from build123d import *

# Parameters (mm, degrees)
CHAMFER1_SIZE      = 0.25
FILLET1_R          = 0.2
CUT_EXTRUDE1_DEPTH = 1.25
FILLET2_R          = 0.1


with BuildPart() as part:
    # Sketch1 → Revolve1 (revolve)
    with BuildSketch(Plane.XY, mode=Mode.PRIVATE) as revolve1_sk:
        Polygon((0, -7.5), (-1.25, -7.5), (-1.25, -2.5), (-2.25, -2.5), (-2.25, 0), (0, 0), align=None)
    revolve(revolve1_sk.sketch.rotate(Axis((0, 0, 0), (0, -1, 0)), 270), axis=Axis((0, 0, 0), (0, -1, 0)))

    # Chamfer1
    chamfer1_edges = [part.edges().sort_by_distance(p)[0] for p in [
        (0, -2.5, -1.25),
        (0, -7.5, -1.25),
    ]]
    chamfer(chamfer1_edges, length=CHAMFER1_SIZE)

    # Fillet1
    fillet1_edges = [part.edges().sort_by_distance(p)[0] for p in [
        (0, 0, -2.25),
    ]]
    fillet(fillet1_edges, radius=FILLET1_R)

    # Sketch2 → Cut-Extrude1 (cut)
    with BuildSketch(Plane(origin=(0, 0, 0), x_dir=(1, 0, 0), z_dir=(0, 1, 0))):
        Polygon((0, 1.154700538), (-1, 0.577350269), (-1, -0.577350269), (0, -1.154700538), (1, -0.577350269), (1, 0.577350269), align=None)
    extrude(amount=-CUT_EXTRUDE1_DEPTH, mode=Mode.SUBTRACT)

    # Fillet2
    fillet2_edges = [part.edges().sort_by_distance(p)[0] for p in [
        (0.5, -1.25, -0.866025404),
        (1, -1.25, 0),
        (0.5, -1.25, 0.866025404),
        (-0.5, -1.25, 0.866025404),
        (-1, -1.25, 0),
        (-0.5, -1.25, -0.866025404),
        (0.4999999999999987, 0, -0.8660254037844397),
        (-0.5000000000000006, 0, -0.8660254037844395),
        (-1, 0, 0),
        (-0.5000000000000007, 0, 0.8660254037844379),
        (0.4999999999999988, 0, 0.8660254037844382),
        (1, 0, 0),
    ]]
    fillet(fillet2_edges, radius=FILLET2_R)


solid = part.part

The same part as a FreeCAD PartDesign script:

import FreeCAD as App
import Part
import Sketcher
Q = App.Units.Quantity


def edges_at(feature, points):
    """Names of the edges that pass closest to the given points."""
    edges = feature.Shape.Edges
    near = lambda p: min(range(len(edges)), key=lambda i: edges[i].distToShape(Part.Vertex(*p))[0])
    return sorted({f"Edge{near(p) + 1}" for p in points})

doc = App.newDocument("Part")
body = doc.addObject("PartDesign::Body", "Body")

sketch1 = doc.addObject("Sketcher::SketchObject", "Sketch")
body.addObject(sketch1)
sketch1.AttachmentSupport = (doc.XY_Plane, [""])
sketch1.MapMode = "FlatFace"
sketch1.addGeometry([
    Part.LineSegment(App.Vector(-1.2, -7.5, 0), App.Vector(0, -7.5, 0)),
    Part.LineSegment(App.Vector(0, -7.5, 0), App.Vector(0, 0, 0)),
    Part.LineSegment(App.Vector(0, 0, 0), App.Vector(-2.2, 0, 0)),
    Part.LineSegment(App.Vector(-2.2, 0, 0), App.Vector(-2.2, -2.5, 0)),
    Part.LineSegment(App.Vector(-2.2, -2.5, 0), App.Vector(-1.2, -2.5, 0)),
    Part.LineSegment(App.Vector(-1.2, -2.5, 0), App.Vector(-1.2, -7.5, 0)),
], False)
sketch1.addConstraint([
    Sketcher.Constraint("Coincident", 0, 2, 1, 1),
    Sketcher.Constraint("Coincident", 1, 2, 2, 1),
    Sketcher.Constraint("Coincident", 2, 2, 3, 1),
    Sketcher.Constraint("Coincident", 3, 2, 4, 1),
    Sketcher.Constraint("Coincident", 4, 2, 5, 1),
    Sketcher.Constraint("Coincident", 5, 2, 0, 1),
    Sketcher.Constraint("Horizontal", 0),
    Sketcher.Constraint("Vertical", 1),
    Sketcher.Constraint("Horizontal", 2),
    Sketcher.Constraint("Vertical", 3),
    Sketcher.Constraint("Horizontal", 4),
    Sketcher.Constraint("Vertical", 5),
    Sketcher.Constraint("Coincident", 1, 2, -1, 1),
    Sketcher.Constraint("DistanceX", 4, 1, 4, 2, 1.0),
    Sketcher.Constraint("DistanceY", 5, 2, 5, 1, 5.0),
    Sketcher.Constraint("DistanceY", 1, 1, 1, 2, 7.5),
    Sketcher.Constraint("DistanceX", 0, 1, 0, 2, 1.25),
])
revolution = doc.addObject("PartDesign::Revolution", "Revolution")
body.addObject(revolution)
revolution.Profile = sketch1
revolution.ReferenceAxis = (sketch1, ["V_Axis"])
revolution.Angle = 360
doc.recompute()

chamfer = doc.addObject("PartDesign::Chamfer", "Chamfer")
body.addObject(chamfer)
chamfer.Base = (revolution, edges_at(revolution, [(0, -2.5, -1.25), (0, -7.5, -1.25)]))
chamfer.Size = 0.25
doc.recompute()

fillet = doc.addObject("PartDesign::Fillet", "Fillet")
body.addObject(fillet)
fillet.Base = (chamfer, edges_at(chamfer, [(0, 0, -2.25)]))
fillet.Radius = 0.2

sketch2 = doc.addObject("Sketcher::SketchObject", "Sketch001")
body.addObject(sketch2)
sketch2.AttachmentSupport = (doc.XZ_Plane, [""])
sketch2.MapMode = "FlatFace"
sketch2.addGeometry([
    Part.LineSegment(App.Vector(0, -1.2, 0), App.Vector(-1, -0.6, 0)),
    Part.LineSegment(App.Vector(-1, -0.6, 0), App.Vector(-1, 0.6, 0)),
    Part.LineSegment(App.Vector(-1, 0.6, 0), App.Vector(0, 1.2, 0)),
    Part.LineSegment(App.Vector(0, 1.2, 0), App.Vector(1, 0.6, 0)),
    Part.LineSegment(App.Vector(1, 0.6, 0), App.Vector(1, -0.6, 0)),
    Part.LineSegment(App.Vector(1, -0.6, 0), App.Vector(0, -1.2, 0)),
], False)
sketch2.addConstraint([
    Sketcher.Constraint("Coincident", 0, 2, 1, 1),
    Sketcher.Constraint("Coincident", 1, 2, 2, 1),
    Sketcher.Constraint("Coincident", 2, 2, 3, 1),
    Sketcher.Constraint("Coincident", 3, 2, 4, 1),
    Sketcher.Constraint("Coincident", 4, 2, 5, 1),
    Sketcher.Constraint("Coincident", 5, 2, 0, 1),
    Sketcher.Constraint("Vertical", 1),
    Sketcher.Constraint("Vertical", 4),
    Sketcher.Constraint("Symmetric", 0, 2, 3, 2, -1, 1),
    Sketcher.Constraint("Symmetric", 2, 2, 5, 2, -1, 1),
    Sketcher.Constraint("PointOnObject", 2, 2, -2),
    Sketcher.Constraint("Parallel", 2, 5),
    Sketcher.Constraint("Horizontal", 1, 2, 3, 2),
    Sketcher.Constraint("Angle", 0, Q("150 deg")),
    Sketcher.Constraint("DistanceX", 0, 2, -1, 1, 1.0),
    Sketcher.Constraint("DistanceY", 1, 1, 1, 2, 1.154701),
])
pocket1 = doc.addObject("PartDesign::Pocket", "Pocket")
body.addObject(pocket1)
pocket1.Profile = sketch2
pocket1.Length = 1.25
pocket1.Reversed = True
doc.recompute()

fillet2 = doc.addObject("PartDesign::Fillet", "Fillet001")
body.addObject(fillet2)
fillet2.Base = (pocket1, edges_at(pocket1, [
    (0.5, -1.25, -0.866),
    (1, -1.25, 0),
    (0.5, -1.25, 0.866),
    (-0.5, -1.25, 0.866),
    (-1, -1.25, 0),
    (-0.5, -1.25, -0.866),
    (0.5, 0, -0.866),
    (-0.5, 0, -0.866),
    (-1, 0, 0),
    (-0.5, 0, 0.866),
    (0.5, 0, 0.866),
    (1, 0, 0),
]))
fillet2.Radius = 0.1

doc.recompute()
